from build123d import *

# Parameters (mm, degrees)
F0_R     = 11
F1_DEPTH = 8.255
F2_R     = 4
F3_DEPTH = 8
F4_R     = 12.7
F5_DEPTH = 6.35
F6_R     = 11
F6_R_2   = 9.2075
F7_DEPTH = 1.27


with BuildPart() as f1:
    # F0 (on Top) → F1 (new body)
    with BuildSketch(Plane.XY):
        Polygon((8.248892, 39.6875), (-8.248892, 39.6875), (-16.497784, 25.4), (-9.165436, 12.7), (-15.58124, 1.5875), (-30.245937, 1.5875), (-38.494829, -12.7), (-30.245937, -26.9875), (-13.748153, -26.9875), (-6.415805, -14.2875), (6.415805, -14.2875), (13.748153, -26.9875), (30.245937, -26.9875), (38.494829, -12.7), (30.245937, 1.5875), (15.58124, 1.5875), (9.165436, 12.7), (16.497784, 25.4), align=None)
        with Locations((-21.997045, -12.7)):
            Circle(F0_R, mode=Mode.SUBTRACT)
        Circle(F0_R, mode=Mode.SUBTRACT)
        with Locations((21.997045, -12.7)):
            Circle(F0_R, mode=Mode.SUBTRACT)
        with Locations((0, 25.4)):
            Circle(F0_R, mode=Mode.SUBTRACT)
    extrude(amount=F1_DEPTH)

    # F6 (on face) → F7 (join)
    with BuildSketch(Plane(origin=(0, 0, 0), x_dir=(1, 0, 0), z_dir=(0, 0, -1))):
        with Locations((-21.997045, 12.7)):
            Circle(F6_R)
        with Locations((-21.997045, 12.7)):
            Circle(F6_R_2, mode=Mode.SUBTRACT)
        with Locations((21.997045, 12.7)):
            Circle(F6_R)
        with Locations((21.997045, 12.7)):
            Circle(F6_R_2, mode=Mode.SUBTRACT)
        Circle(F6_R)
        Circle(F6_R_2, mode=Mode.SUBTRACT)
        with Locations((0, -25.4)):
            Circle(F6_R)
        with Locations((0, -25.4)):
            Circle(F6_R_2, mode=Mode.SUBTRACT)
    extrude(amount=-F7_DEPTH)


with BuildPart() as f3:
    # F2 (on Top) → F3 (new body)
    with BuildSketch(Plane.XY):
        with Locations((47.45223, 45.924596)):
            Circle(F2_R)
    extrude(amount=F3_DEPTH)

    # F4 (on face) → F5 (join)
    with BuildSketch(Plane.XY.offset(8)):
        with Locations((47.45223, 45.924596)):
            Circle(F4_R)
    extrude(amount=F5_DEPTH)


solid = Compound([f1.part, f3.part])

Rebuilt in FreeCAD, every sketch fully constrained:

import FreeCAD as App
import Part
import Sketcher
Q = App.Units.Quantity

doc = App.newDocument("Part")
params = doc.addObject("Spreadsheet::Sheet", "Params")
for row, (alias, value) in enumerate([
    ("pad1_length", "0.325 in"),
    ("sketch2_diameter", "0.725 in"),
    ("pad2_length", "0.05 in"),
    ("pad3_length", "8 mm"),
    ("sketch4_diameter", "1 in"),
    ("pad4_length", "0.25 in"),
], start=1):
    params.set(f"A{row}", alias)
    params.set(f"B{row}", "=" + value)
    params.setAlias(f"B{row}", alias)

body = doc.addObject("PartDesign::Body", "Body")

# Sketch on XY plane
sketch1 = body.newObject("Sketcher::SketchObject", "Sketch")
sketch1.AttachmentSupport = (doc.getObject("XY_Plane"), [""])
sketch1.MapMode = "FlatFace"
sketch1.addGeometry([
    Part.LineSegment(App.Vector(8, 40, 0), App.Vector(-8, 40, 0)),  # 0
    Part.LineSegment(App.Vector(-8, 40, 0), App.Vector(-16, 25, 0)),  # 1
    Part.LineSegment(App.Vector(-16, 25, 0), App.Vector(-9, 13, 0)),  # 2
    Part.LineSegment(App.Vector(-9, 13, 0), App.Vector(-16, 2, 0)),  # 3
    Part.LineSegment(App.Vector(-16, 2, 0), App.Vector(-30, 2, 0)),  # 4
    Part.LineSegment(App.Vector(-30, 2, 0), App.Vector(-38, -13, 0)),  # 5
    Part.LineSegment(App.Vector(-38, -13, 0), App.Vector(-30, -27, 0)),  # 6
    Part.LineSegment(App.Vector(-30, -27, 0), App.Vector(-14, -27, 0)),  # 7
    Part.LineSegment(App.Vector(-14, -27, 0), App.Vector(-6, -14, 0)),  # 8
    Part.LineSegment(App.Vector(-6, -14, 0), App.Vector(6, -14, 0)),  # 9
    Part.LineSegment(App.Vector(6, -14, 0), App.Vector(14, -27, 0)),  # 10
    Part.LineSegment(App.Vector(14, -27, 0), App.Vector(30, -27, 0)),  # 11
    Part.LineSegment(App.Vector(30, -27, 0), App.Vector(38, -13, 0)),  # 12
    Part.LineSegment(App.Vector(38, -13, 0), App.Vector(30, 2, 0)),  # 13
    Part.LineSegment(App.Vector(30, 2, 0), App.Vector(16, 2, 0)),  # 14
    Part.LineSegment(App.Vector(16, 2, 0), App.Vector(9, 13, 0)),  # 15
    Part.LineSegment(App.Vector(9, 13, 0), App.Vector(16, 25, 0)),  # 16
    Part.LineSegment(App.Vector(16, 25, 0), App.Vector(8, 40, 0)),  # 17
    Part.Circle(App.Vector(-22, -13, 0), App.Vector(0, 0, 1), 11),  # 18
    Part.Circle(App.Vector(22, -13, 0), App.Vector(0, 0, 1), 11),  # 19
    Part.Circle(App.Vector(0, 0, 0), App.Vector(0, 0, 1), 11),  # 20
    Part.Circle(App.Vector(0, 25, 0), App.Vector(0, 0, 1), 11),  # 21
], False)
sketch1.addConstraint([
    Sketcher.Constraint("Coincident", 0, 2, 1, 1),
    Sketcher.Constraint("Coincident", 1, 2, 2, 1),
    Sketcher.Constraint("Coincident", 2, 2, 3, 1),
    Sketcher.Constraint("Coincident", 3, 2, 4, 1),
    Sketcher.Constraint("Coincident", 4, 2, 5, 1),
    Sketcher.Constraint("Coincident", 5, 2, 6, 1),
    Sketcher.Constraint("Coincident", 6, 2, 7, 1),
    Sketcher.Constraint("Coincident", 7, 2, 8, 1),
    Sketcher.Constraint("Coincident", 8, 2, 9, 1),
    Sketcher.Constraint("Coincident", 9, 2, 10, 1),
    Sketcher.Constraint("Coincident", 10, 2, 11, 1),
    Sketcher.Constraint("Coincident", 11, 2, 12, 1),
    Sketcher.Constraint("Coincident", 12, 2, 13, 1),
    Sketcher.Constraint("Coincident", 13, 2, 14, 1),
    Sketcher.Constraint("Coincident", 14, 2, 15, 1),
    Sketcher.Constraint("Coincident", 15, 2, 16, 1),
    Sketcher.Constraint("Coincident", 16, 2, 17, 1),
    Sketcher.Constraint("Coincident", 17, 2, 0, 1),
    Sketcher.Constraint("Horizontal", 0),
    Sketcher.Constraint("Horizontal", 4),
    Sketcher.Constraint("Horizontal", 7),
    Sketcher.Constraint("Horizontal", 9),
    Sketcher.Constraint("Horizontal", 11),
    Sketcher.Constraint("Horizontal", 14),
    Sketcher.Constraint("Coincident", 20, 3, -1, 1),
    Sketcher.Constraint("Equal", 18, 19),
    Sketcher.Constraint("Equal", 19, 20),
    Sketcher.Constraint("Equal", 20, 21),
    Sketcher.Constraint("Symmetric", 18, 3, 19, 3, -2),
    Sketcher.Constraint("Symmetric", 7, 2, 10, 2, -2),
    Sketcher.Constraint("Symmetric", 5, 2, 12, 2, -2),
    Sketcher.Constraint("Symmetric", 4, 2, 13, 2, -2),
    Sketcher.Constraint("Symmetric", 2, 2, 15, 2, -2),
    Sketcher.Constraint("Symmetric", 1, 2, 16, 2, -2),
    Sketcher.Constraint("PointOnObject", 21, 3, -2),
    Sketcher.Constraint("Parallel", 1, 3),
    Sketcher.Constraint("Parallel", 3, 5),
    Sketcher.Constraint("Parallel", 2, 6),
    Sketcher.Constraint("Parallel", 5, 8),
    Sketcher.Constraint("Parallel", 6, 10),
    Sketcher.Constraint("Parallel", 8, 12),
    Sketcher.Constraint("Parallel", 10, 13),
    Sketcher.Constraint("Parallel", 13, 15),
    Sketcher.Constraint("Parallel", 15, 17),
    Sketcher.Constraint("Horizontal", 21, 3, 1, 2),
    Sketcher.Constraint("Horizontal", 19, 3, 5, 2),
    Sketcher.Constraint("Vertical", 4, 2, 6, 2),
    Sketcher.Constraint("Equal", 0, 7),
    Sketcher.Constraint("Equal", 1, 5),
    Sketcher.Constraint("Equal", 2, 8),
    Sketcher.Constraint("DistanceY", -1, 1, 21, 3, Q("1 in")),
    Sketcher.Constraint("Angle", 1, Q("-120 deg")),
    Sketcher.Constraint("DistanceY", 18, 3, 2, 2, Q("1 in")),
    Sketcher.Constraint("DistanceY", 18, 3, -1, 1, Q("0.5 in")),
    Sketcher.Constraint("Diameter", 18, Q("22 mm")),
    Sketcher.Constraint("DistanceY", -1, 1, 0, 2, Q("1.5625 in")),
    Sketcher.Constraint("DistanceX", 9, 1, 9, 2, Q("12.83161 mm")),
    Sketcher.Constraint("DistanceX", 4, 2, 2, 2, Q("21.080501 mm")),
    Sketcher.Constraint("DistanceX", 18, 3, 19, 3, Q("43.99409 mm")),
])
pad1 = body.newObject("PartDesign::Pad", "Pad")
pad1.Profile = sketch1
pad1.setExpression("Length", "Params.pad1_length")

# Sketch on XY plane
sketch2 = body.newObject("Sketcher::SketchObject", "Sketch001")
sketch2.AttachmentSupport = (doc.getObject("XY_Plane"), [""])
sketch2.MapMode = "FlatFace"
sketch2.addGeometry([
    Part.Circle(App.Vector(-22, -13, 0), App.Vector(0, 0, 1), 11),  # 0
    Part.Circle(App.Vector(-22, -13, 0), App.Vector(0, 0, 1), 9),  # 1
    Part.Circle(App.Vector(22, -13, 0), App.Vector(0, 0, 1), 11),  # 2
    Part.Circle(App.Vector(22, -13, 0), App.Vector(0, 0, 1), 9),  # 3
    Part.Circle(App.Vector(0, 0, 0), App.Vector(0, 0, 1), 11),  # 4
    Part.Circle(App.Vector(0, 0, 0), App.Vector(0, 0, 1), 9),  # 5
    Part.Circle(App.Vector(0, 25, 0), App.Vector(0, 0, 1), 11),  # 6
    Part.Circle(App.Vector(0, 25, 0), App.Vector(0, 0, 1), 9),  # 7
], False)
sketch2.addConstraint([
    Sketcher.Constraint("Coincident", 4, 3, -1, 1),
    Sketcher.Constraint("Coincident", 5, 3, -1, 1),
    Sketcher.Constraint("Coincident", 1, 3, 0, 3),
    Sketcher.Constraint("Coincident", 3, 3, 2, 3),
    Sketcher.Constraint("Coincident", 7, 3, 6, 3),
    Sketcher.Constraint("Equal", 0, 2),
    Sketcher.Constraint("Equal", 1, 3),
    Sketcher.Constraint("Equal", 2, 4),
    Sketcher.Constraint("Equal", 3, 5),
    Sketcher.Constraint("Equal", 4, 6),
    Sketcher.Constraint("Equal", 5, 7),
    Sketcher.Constraint("Symmetric", 0, 3, 2, 3, -2),
    Sketcher.Constraint("PointOnObject", 6, 3, -2),
    Sketcher.Constraint("Diameter", 1, Q("0.725 in")),
    Sketcher.Constraint("DistanceY", -1, 1, 6, 3, Q("1 in")),
    Sketcher.Constraint("DistanceY", 0, 3, -1, 1, Q("0.5 in")),
    Sketcher.Constraint("Diameter", 0, Q("22 mm")),
    Sketcher.Constraint("DistanceX", 0, 3, 2, 3, Q("43.99409 mm")),
])
sketch2.setExpression("Constraints[13]", "Params.sketch2_diameter")
pad2 = body.newObject("PartDesign::Pad", "Pad001")
pad2.Profile = sketch2
pad2.setExpression("Length", "Params.pad2_length")
body2 = doc.addObject("PartDesign::Body", "Body001")

# Sketch on XY plane
sketch3 = body2.newObject("Sketcher::SketchObject", "Sketch002")
sketch3.AttachmentSupport = (doc.getObject("XY_Plane001"), [""])
sketch3.MapMode = "FlatFace"
sketch3.addGeometry(Part.Circle(App.Vector(47.5, 45.9, 0), App.Vector(0, 0, 1), 4), False)
sketch3.addConstraint([
    Sketcher.Constraint("Diameter", 0, Q("8 mm")),
    Sketcher.Constraint("DistanceX", -1, 1, 0, 3, Q("47.45223 mm")),
    Sketcher.Constraint("DistanceY", -1, 1, 0, 3, Q("45.924596 mm")),
])
pad3 = body2.newObject("PartDesign::Pad", "Pad002")
pad3.Profile = sketch3
pad3.setExpression("Length", "Params.pad3_length")

# Sketch on XY plane
sketch4 = body2.newObject("Sketcher::SketchObject", "Sketch003")
sketch4.AttachmentSupport = (doc.getObject("XY_Plane001"), [""])
sketch4.MapMode = "FlatFace"
sketch4.AttachmentOffset = App.Placement(App.Vector(0, 0, 8), App.Rotation())
sketch4.addGeometry(Part.Circle(App.Vector(47, 46, 0), App.Vector(0, 0, 1), 13), False)
sketch4.addConstraint([
    Sketcher.Constraint("Diameter", 0, Q("1 in")),
    Sketcher.Constraint("DistanceX", -1, 1, 0, 3, Q("47.45223 mm")),
    Sketcher.Constraint("DistanceY", -1, 1, 0, 3, Q("45.924596 mm")),
])
sketch4.setExpression("Constraints[0]", "Params.sketch4_diameter")
pad4 = body2.newObject("PartDesign::Pad", "Pad003")
pad4.Profile = sketch4
pad4.setExpression("Length", "Params.pad4_length")

doc.recompute()
